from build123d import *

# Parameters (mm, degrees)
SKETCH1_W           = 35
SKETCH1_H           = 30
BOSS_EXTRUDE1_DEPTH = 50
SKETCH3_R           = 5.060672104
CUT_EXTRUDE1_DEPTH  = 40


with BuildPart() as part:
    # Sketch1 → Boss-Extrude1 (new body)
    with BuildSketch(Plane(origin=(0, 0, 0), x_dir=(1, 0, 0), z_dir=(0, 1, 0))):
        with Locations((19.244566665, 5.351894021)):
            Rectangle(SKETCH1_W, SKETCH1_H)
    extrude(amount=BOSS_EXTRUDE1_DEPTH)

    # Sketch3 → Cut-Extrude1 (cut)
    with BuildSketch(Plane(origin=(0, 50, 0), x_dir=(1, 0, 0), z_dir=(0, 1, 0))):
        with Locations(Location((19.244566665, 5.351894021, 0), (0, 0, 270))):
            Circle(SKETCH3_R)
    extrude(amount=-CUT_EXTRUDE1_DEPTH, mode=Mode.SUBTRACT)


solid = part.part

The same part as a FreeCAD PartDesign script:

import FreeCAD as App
import Part
import Sketcher

V = App.Vector
Q = App.Units.Quantity

doc = App.newDocument("Part")
body = doc.addObject("PartDesign::Body", "Body")

sketch1 = body.newObject("Sketcher::SketchObject", "Sketch")
sketch1.AttachmentSupport = (doc.getObject("XZ_Plane"), [""])
sketch1.MapMode = "FlatFace"
sketch1.addGeometry([
    Part.LineSegment(V(2, -20, 0), V(2, 10, 0)),
    Part.LineSegment(V(2, 10, 0), V(37, 10, 0)),
    Part.LineSegment(V(37, 10, 0), V(37, -20, 0)),
    Part.LineSegment(V(37, -20, 0), V(2, -20, 0)),
], False)
sketch1.addConstraint([
    Sketcher.Constraint("Coincident", 0, 2, 1, 1),
    Sketcher.Constraint("Coincident", 1, 2, 2, 1),
    Sketcher.Constraint("Coincident", 2, 2, 3, 1),
    Sketcher.Constraint("Coincident", 3, 2, 0, 1),
    Sketcher.Constraint("Vertical", 0),
    Sketcher.Constraint("Horizontal", 1),
    Sketcher.Constraint("Vertical", 2),
    Sketcher.Constraint("Horizontal", 3),
    Sketcher.Constraint("DistanceX", 1, 1, 1, 2, Q("35 mm")),
    Sketcher.Constraint("DistanceY", 0, 1, 0, 2, Q("30 mm")),
    Sketcher.Constraint("DistanceX", -1, 1, 0, 2, Q("1.744567 mm")),
    Sketcher.Constraint("DistanceY", -1, 1, 0, 2, Q("9.648106 mm")),
])
pad1 = body.newObject("PartDesign::Pad", "Pad")
pad1.Profile = sketch1
pad1.Length = 50
pad1.Reversed = True

sketch2 = body.newObject("Sketcher::SketchObject", "Sketch001")
sketch2.AttachmentSupport = (doc.getObject("XZ_Plane"), [""])
sketch2.MapMode = "FlatFace"
sketch2.AttachmentOffset = App.Placement(V(0, 0, -50), App.Rotation())
sketch2.addGeometry(Part.Circle(V(19, -5, 0), V(0, 0, 1), 5), False)
sketch2.addConstraint([
    Sketcher.Constraint("Diameter", 0, Q("10.121344 mm")),
    Sketcher.Constraint("DistanceX", -1, 1, 0, 3, Q("19.244567 mm")),
    Sketcher.Constraint("DistanceY", 0, 3, -1, 1, Q("5.351894 mm")),
])
pocket1 = body.newObject("PartDesign::Pocket", "Pocket")
pocket1.Profile = sketch2
pocket1.Length = 40
pocket1.Reversed = True

doc.recompute()
